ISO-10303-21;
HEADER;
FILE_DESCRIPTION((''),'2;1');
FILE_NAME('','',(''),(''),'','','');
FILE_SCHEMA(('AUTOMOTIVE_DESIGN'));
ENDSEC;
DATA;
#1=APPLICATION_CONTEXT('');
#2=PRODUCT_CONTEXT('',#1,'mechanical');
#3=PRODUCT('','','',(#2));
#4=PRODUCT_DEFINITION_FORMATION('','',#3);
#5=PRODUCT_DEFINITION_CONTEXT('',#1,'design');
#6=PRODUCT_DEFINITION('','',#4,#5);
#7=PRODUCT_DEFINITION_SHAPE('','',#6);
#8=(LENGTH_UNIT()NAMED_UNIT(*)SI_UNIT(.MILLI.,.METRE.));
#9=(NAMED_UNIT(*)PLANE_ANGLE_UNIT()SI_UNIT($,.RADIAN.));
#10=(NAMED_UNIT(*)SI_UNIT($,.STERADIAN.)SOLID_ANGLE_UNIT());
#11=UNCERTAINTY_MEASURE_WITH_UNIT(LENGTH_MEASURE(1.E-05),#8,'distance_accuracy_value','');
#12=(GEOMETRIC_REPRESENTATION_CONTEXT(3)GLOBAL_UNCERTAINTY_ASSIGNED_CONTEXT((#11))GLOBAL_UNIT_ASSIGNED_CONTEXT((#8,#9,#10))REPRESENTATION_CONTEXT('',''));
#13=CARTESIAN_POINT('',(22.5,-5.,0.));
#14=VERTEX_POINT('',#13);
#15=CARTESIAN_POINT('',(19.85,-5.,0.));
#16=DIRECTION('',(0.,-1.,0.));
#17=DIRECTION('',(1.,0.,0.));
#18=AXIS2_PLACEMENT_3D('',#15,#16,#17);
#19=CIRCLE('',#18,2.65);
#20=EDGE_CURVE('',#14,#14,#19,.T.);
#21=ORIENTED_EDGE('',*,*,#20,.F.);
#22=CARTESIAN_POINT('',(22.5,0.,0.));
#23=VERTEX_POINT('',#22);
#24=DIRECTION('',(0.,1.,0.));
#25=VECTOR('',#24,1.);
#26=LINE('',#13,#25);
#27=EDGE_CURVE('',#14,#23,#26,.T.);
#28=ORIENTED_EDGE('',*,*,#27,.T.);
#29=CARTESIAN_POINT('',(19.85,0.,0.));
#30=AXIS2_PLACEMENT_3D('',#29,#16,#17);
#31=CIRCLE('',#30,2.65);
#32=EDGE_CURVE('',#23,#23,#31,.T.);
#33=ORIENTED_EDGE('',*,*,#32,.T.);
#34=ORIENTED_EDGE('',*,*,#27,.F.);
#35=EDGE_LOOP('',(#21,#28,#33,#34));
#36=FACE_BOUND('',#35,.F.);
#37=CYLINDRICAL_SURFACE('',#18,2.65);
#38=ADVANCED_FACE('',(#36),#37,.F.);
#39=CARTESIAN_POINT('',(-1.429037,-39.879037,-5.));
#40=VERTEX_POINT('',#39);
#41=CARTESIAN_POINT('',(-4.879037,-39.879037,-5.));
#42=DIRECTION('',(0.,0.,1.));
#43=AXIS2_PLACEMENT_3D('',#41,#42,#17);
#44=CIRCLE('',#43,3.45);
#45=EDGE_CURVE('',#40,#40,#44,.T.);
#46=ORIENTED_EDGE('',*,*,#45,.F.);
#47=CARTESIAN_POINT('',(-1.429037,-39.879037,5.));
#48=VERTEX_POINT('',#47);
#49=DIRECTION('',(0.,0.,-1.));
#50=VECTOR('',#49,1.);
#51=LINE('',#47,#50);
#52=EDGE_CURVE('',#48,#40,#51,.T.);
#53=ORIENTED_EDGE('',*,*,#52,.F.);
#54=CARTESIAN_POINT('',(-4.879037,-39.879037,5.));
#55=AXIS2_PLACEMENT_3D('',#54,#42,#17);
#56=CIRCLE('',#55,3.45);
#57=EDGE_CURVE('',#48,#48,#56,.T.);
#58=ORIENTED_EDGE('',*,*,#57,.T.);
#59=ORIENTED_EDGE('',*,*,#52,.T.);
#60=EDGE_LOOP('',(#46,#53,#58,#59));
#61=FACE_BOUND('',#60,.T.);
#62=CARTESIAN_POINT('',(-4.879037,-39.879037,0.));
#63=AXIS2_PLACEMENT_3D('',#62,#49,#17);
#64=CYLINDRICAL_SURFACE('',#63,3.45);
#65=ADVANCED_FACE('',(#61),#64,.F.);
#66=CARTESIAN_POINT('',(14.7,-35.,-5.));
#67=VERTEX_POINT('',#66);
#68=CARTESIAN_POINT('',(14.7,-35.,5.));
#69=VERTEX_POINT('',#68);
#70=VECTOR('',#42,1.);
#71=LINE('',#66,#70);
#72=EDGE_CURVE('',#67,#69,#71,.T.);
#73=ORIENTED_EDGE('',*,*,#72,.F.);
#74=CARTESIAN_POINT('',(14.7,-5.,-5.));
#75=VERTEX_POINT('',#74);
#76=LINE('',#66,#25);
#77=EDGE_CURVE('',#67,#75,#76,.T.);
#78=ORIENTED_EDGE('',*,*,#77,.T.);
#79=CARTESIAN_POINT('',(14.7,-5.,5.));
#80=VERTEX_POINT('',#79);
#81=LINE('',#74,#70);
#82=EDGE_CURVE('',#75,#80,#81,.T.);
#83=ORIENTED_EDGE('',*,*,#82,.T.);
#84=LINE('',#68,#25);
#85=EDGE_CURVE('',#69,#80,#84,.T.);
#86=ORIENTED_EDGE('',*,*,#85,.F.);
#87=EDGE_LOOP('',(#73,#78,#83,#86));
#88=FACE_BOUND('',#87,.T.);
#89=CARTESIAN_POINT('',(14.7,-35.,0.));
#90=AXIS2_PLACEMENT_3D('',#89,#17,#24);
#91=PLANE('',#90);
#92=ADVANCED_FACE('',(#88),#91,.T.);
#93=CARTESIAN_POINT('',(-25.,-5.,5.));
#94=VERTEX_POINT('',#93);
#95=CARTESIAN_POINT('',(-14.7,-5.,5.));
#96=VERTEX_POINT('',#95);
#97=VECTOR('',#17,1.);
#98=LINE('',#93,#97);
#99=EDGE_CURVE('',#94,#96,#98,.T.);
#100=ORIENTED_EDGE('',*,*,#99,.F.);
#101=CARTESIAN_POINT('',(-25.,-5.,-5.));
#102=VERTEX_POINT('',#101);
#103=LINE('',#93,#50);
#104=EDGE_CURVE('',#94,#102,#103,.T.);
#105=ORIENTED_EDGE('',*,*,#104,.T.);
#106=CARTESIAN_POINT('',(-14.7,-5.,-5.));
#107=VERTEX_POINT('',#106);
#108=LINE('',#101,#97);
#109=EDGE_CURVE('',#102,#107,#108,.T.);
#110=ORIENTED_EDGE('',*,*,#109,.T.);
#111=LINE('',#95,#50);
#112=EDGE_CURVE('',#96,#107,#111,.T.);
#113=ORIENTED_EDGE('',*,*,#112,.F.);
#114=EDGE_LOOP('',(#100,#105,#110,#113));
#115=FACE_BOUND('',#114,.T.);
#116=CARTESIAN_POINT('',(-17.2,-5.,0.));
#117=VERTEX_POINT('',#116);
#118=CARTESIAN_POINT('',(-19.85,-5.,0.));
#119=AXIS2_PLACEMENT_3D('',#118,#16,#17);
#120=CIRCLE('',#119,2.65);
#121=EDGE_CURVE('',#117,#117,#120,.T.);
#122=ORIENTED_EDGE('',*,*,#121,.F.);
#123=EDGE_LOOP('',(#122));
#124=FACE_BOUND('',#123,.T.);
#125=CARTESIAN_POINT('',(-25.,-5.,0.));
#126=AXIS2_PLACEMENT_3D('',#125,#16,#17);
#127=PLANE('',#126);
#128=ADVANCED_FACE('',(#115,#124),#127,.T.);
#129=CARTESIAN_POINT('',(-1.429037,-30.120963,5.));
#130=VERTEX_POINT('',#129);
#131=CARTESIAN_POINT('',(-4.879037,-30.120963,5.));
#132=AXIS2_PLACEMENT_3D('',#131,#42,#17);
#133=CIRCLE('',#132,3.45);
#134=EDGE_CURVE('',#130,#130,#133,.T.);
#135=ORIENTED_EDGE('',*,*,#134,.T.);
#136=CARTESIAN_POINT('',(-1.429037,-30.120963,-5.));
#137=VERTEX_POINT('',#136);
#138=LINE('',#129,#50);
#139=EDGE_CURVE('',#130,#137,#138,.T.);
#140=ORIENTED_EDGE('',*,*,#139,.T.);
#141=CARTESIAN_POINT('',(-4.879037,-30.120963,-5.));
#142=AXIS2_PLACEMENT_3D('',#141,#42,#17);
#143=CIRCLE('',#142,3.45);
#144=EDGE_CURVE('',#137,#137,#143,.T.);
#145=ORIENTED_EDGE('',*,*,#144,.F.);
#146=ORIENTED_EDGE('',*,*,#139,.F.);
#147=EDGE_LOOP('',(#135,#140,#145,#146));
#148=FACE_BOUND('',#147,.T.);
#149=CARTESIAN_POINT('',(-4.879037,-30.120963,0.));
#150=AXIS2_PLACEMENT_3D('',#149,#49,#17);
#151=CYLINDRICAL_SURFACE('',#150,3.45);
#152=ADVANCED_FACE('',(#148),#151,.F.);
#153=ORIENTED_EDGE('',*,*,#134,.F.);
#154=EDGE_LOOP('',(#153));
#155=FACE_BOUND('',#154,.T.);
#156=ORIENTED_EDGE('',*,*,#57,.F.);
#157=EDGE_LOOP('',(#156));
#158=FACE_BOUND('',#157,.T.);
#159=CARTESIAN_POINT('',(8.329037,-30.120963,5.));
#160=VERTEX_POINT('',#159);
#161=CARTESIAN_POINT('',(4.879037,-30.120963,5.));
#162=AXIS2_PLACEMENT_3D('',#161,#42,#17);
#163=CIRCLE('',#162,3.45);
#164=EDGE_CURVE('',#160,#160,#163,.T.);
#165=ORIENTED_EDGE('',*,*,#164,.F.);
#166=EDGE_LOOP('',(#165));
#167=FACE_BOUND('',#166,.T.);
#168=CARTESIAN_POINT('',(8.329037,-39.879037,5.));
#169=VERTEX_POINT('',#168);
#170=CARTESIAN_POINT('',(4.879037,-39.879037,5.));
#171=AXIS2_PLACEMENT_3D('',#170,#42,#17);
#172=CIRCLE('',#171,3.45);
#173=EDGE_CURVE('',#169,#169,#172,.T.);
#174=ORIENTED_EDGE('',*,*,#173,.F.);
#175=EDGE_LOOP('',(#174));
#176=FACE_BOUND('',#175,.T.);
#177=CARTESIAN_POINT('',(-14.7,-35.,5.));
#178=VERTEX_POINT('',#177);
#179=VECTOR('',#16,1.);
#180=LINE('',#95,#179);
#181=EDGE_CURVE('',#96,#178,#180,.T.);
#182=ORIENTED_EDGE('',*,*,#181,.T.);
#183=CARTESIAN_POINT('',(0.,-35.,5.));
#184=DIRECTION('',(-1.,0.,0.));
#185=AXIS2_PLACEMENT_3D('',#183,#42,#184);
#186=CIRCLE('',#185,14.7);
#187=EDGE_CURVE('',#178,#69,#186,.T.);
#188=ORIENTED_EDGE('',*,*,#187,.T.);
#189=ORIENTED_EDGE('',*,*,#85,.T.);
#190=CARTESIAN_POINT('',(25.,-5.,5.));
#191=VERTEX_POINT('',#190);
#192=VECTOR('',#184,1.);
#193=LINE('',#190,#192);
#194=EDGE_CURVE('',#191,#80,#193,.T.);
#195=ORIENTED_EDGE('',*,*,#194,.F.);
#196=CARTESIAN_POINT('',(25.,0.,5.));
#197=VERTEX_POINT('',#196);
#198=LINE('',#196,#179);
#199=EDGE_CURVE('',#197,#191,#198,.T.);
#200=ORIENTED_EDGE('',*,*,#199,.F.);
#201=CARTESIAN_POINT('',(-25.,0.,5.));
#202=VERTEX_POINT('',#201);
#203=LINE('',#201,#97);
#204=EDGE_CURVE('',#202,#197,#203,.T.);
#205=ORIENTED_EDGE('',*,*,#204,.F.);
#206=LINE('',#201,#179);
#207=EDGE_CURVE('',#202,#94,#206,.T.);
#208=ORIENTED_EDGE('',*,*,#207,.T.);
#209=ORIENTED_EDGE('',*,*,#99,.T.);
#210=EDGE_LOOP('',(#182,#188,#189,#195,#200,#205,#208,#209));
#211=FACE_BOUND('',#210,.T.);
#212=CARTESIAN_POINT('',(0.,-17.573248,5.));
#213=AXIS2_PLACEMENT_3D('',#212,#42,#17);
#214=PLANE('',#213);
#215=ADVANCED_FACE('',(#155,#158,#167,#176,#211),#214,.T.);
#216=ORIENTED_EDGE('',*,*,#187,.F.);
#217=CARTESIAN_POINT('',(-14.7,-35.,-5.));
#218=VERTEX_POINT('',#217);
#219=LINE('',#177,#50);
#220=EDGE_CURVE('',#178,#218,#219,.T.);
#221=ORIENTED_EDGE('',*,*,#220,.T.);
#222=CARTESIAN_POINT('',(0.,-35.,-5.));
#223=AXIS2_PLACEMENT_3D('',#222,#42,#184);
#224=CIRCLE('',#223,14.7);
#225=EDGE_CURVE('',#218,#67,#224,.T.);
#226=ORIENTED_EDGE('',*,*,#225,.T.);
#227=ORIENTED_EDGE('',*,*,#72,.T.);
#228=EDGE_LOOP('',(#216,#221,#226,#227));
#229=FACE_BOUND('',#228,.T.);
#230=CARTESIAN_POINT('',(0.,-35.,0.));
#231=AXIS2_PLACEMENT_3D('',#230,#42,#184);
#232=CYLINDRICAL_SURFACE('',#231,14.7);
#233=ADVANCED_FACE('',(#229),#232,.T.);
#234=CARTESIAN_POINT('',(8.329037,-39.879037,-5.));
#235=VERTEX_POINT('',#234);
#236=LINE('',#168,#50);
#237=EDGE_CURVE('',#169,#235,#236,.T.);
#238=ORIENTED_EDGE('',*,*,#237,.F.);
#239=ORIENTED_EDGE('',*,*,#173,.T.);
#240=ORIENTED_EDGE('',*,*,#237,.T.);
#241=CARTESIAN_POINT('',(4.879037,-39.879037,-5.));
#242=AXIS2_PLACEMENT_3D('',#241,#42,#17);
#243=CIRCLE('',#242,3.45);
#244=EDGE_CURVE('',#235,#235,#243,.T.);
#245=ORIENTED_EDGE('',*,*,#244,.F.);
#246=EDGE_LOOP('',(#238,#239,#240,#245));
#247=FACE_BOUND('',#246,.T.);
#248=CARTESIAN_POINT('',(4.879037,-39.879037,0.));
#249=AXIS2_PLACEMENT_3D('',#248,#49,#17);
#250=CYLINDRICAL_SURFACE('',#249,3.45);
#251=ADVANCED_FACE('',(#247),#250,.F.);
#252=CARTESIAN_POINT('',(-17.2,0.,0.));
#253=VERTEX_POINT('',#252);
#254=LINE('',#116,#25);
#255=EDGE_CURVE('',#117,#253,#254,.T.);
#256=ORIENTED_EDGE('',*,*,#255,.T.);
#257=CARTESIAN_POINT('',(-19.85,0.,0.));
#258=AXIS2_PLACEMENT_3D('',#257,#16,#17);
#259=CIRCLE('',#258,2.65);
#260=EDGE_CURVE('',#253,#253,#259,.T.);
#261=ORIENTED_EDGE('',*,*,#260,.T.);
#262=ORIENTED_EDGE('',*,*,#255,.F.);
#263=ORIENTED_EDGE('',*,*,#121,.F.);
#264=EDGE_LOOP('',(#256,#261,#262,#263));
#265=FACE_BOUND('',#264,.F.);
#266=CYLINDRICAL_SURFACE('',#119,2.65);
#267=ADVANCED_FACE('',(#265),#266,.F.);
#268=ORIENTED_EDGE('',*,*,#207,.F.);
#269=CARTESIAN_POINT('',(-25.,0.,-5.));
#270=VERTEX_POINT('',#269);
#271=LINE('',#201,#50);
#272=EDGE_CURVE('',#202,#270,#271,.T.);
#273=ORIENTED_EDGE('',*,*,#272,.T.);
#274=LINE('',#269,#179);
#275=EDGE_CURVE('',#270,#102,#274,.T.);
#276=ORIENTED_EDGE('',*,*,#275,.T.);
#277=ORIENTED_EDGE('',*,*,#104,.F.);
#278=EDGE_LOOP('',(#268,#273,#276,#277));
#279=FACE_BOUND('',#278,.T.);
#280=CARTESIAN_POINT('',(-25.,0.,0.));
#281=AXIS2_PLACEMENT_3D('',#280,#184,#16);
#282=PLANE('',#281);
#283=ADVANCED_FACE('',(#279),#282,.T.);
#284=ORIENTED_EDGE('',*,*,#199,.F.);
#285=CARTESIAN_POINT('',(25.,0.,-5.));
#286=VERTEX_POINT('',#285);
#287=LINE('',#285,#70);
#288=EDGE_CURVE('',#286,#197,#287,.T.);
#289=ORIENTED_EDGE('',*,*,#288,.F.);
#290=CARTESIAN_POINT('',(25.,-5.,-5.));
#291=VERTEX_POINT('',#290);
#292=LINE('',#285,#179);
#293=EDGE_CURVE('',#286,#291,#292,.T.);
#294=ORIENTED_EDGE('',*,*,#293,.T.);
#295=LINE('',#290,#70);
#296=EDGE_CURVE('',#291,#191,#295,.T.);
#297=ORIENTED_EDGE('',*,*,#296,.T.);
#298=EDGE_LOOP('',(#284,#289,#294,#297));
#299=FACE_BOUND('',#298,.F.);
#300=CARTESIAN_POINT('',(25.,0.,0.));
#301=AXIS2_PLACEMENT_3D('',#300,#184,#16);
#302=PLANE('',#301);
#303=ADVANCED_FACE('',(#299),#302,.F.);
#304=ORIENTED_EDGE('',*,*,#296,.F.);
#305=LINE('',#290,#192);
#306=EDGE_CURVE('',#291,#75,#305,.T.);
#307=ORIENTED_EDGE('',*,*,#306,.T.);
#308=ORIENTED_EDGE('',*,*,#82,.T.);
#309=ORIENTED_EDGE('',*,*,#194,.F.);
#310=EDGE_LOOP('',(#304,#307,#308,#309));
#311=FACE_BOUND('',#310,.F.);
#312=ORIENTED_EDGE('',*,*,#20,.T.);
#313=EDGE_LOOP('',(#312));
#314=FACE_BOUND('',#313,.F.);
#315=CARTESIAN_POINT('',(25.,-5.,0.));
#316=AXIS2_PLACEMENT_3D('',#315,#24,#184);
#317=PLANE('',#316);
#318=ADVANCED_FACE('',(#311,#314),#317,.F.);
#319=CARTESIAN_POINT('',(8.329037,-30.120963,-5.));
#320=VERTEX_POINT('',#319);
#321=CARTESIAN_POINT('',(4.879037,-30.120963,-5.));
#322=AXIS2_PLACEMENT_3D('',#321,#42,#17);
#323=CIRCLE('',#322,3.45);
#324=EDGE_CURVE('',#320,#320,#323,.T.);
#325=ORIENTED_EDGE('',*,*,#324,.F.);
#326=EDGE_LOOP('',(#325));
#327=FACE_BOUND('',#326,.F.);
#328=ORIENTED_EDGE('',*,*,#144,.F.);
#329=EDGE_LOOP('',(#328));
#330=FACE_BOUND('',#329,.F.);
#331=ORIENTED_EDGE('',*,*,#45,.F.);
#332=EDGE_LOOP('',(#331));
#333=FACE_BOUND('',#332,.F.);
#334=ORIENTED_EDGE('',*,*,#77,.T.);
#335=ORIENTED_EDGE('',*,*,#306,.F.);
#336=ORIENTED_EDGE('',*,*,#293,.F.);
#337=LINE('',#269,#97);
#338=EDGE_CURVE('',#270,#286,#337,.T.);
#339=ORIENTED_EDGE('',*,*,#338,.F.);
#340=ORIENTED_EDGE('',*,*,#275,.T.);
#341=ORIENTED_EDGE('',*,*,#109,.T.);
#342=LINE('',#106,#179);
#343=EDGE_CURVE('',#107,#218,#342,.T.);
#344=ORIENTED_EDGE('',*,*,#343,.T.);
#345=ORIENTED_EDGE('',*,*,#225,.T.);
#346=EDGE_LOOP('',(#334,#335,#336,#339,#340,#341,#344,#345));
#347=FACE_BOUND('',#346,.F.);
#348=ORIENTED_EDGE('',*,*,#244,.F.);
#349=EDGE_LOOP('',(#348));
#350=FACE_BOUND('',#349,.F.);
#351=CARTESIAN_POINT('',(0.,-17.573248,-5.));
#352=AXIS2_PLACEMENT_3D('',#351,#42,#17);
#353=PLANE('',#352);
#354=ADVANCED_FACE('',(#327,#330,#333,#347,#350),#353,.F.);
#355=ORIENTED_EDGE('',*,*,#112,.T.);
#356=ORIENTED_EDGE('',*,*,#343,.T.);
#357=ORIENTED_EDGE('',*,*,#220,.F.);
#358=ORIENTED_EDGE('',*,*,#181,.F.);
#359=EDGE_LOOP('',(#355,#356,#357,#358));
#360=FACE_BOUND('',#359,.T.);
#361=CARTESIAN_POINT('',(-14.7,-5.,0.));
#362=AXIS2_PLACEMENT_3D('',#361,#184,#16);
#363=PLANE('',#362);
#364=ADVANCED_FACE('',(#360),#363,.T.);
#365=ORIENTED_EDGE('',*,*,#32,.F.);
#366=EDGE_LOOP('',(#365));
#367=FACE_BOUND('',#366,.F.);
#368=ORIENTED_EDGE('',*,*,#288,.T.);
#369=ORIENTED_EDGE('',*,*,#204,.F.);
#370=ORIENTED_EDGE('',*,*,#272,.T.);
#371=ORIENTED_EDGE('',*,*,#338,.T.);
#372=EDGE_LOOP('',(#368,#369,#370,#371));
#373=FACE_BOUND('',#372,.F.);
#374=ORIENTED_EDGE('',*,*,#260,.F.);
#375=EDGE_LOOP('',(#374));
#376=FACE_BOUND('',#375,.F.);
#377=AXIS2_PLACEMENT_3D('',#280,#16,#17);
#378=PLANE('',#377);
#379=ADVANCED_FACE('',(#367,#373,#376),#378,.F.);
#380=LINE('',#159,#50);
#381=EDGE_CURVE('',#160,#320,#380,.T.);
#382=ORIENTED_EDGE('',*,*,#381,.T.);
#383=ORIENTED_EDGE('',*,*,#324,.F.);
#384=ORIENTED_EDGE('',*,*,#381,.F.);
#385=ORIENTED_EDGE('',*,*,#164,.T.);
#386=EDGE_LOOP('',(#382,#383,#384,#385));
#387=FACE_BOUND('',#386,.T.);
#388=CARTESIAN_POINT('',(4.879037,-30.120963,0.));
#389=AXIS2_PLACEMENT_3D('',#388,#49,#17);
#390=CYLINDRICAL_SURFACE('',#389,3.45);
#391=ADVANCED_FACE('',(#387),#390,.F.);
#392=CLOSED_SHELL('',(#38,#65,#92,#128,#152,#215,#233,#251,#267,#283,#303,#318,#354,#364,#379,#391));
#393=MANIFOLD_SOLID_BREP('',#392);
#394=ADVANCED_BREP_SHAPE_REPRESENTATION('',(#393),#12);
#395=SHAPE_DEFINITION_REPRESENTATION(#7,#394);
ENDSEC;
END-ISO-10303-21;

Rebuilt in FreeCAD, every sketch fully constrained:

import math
import FreeCAD as App
import Part
import Sketcher
Q = App.Units.Quantity

doc = App.newDocument("Part")
body = doc.addObject("PartDesign::Body", "Body")

sketch1 = body.newObject("Sketcher::SketchObject", "Sketch")
sketch1.AttachmentSupport = (doc.getObject("XY_Plane"), [""])
sketch1.MapMode = "FlatFace"
sketch1.addGeometry(Part.ArcOfCircle(Part.Circle(App.Vector(0, -35, 0), App.Vector(0, 0, 1), 14.7), math.radians(180), math.radians(360)), False)
sketch1.addGeometry(Part.LineSegment(App.Vector(14.7, -35, 0), App.Vector(14.7, -5, 0)), False)
sketch1.addGeometry(Part.LineSegment(App.Vector(14.7, -5, 0), App.Vector(25, -5, 0)), False)
sketch1.addGeometry(Part.LineSegment(App.Vector(25, -5, 0), App.Vector(25, 0, 0)), False)
sketch1.addGeometry(Part.LineSegment(App.Vector(25, 0, 0), App.Vector(-25, 0, 0)), False)
sketch1.addGeometry(Part.LineSegment(App.Vector(-25, 0, 0), App.Vector(-25, -5, 0)), False)
sketch1.addGeometry(Part.LineSegment(App.Vector(-25, -5, 0), App.Vector(-14.7, -5, 0)), False)
sketch1.addGeometry(Part.LineSegment(App.Vector(-14.7, -5, 0), App.Vector(-14.7, -35, 0)), False)
sketch1.addGeometry(Part.Circle(App.Vector(-4.879037, -39.879037, 0), App.Vector(0, 0, 1), 3.45), False)
sketch1.addGeometry(Part.Circle(App.Vector(4.879037, -39.879037, 0), App.Vector(0, 0, 1), 3.45), False)
sketch1.addGeometry(Part.Circle(App.Vector(-4.879037, -30.120963, 0), App.Vector(0, 0, 1), 3.45), False)
sketch1.addGeometry(Part.Circle(App.Vector(4.879037, -30.120963, 0), App.Vector(0, 0, 1), 3.45), False)
sketch1.addConstraint(Sketcher.Constraint("Tangent", 0, 2, 1, 1))
sketch1.addConstraint(Sketcher.Constraint("Coincident", 1, 2, 2, 1))
sketch1.addConstraint(Sketcher.Constraint("Coincident", 2, 2, 3, 1))
sketch1.addConstraint(Sketcher.Constraint("Coincident", 3, 2, 4, 1))
sketch1.addConstraint(Sketcher.Constraint("Coincident", 4, 2, 5, 1))
sketch1.addConstraint(Sketcher.Constraint("Coincident", 5, 2, 6, 1))
sketch1.addConstraint(Sketcher.Constraint("Coincident", 6, 2, 7, 1))
sketch1.addConstraint(Sketcher.Constraint("Tangent", 7, 2, 0, 1))
sketch1.addConstraint(Sketcher.Constraint("Vertical", 1))
sketch1.addConstraint(Sketcher.Constraint("Horizontal", 2))
sketch1.addConstraint(Sketcher.Constraint("Vertical", 3))
sketch1.addConstraint(Sketcher.Constraint("Horizontal", 4))
sketch1.addConstraint(Sketcher.Constraint("Vertical", 5))
sketch1.addConstraint(Sketcher.Constraint("Horizontal", 6))
sketch1.addConstraint(Sketcher.Constraint("Vertical", 7))
sketch1.addConstraint(Sketcher.Constraint("Equal", 8, 9))
sketch1.addConstraint(Sketcher.Constraint("Equal", 9, 10))
sketch1.addConstraint(Sketcher.Constraint("Equal", 10, 11))
sketch1.addConstraint(Sketcher.Constraint("Symmetric", 3, 2, 4, 2, -1, 1))
sketch1.addConstraint(Sketcher.Constraint("Symmetric", 8, 3, 9, 3, -2))
sketch1.addConstraint(Sketcher.Constraint("Symmetric", 10, 3, 11, 3, -2))
sketch1.addConstraint(Sketcher.Constraint("Symmetric", 1, 2, 6, 2, -2))
sketch1.addConstraint(Sketcher.Constraint("Vertical", 8, 3, 10, 3))
sketch1.addConstraint(Sketcher.Constraint("Diameter", 8, Q("6.9 mm")))
sketch1.addConstraint(Sketcher.Constraint("Radius", 0, Q("14.7 mm")))
sketch1.addConstraint(Sketcher.Constraint("DistanceX", 4, 2, 4, 1, Q("50 mm")))
sketch1.addConstraint(Sketcher.Constraint("DistanceY", 1, 1, 1, 2, Q("30 mm")))
sketch1.addConstraint(Sketcher.Constraint("DistanceY", 3, 1, 3, 2, Q("5 mm")))
sketch1.addConstraint(Sketcher.Constraint("DistanceX", 8, 3, -1, 1, Q("4.879037 mm")))
sketch1.addConstraint(Sketcher.Constraint("DistanceY", 8, 3, -1, 1, Q("39.879037 mm")))
sketch1.addConstraint(Sketcher.Constraint("DistanceY", 10, 3, -1, 1, Q("30.120963 mm")))
pad1 = body.newObject("PartDesign::Pad", "Pad")
pad1.Profile = sketch1
pad1.Length = 10
pad1.Midplane = True

sketch2 = body.newObject("Sketcher::SketchObject", "Sketch001")
sketch2.AttachmentSupport = (doc.getObject("XZ_Plane"), [""])
sketch2.MapMode = "FlatFace"
sketch2.AttachmentOffset = App.Placement(App.Vector(0, 0, 5), App.Rotation())
sketch2.addGeometry(Part.Circle(App.Vector(-19.85, 0, 0), App.Vector(0, 0, 1), 2.65), False)
sketch2.addGeometry(Part.Circle(App.Vector(19.85, 0, 0), App.Vector(0, 0, 1), 2.65), False)
sketch2.addConstraint(Sketcher.Constraint("Equal", 0, 1))
sketch2.addConstraint(Sketcher.Constraint("Symmetric", 0, 3, 1, 3, -1, 1))
sketch2.addConstraint(Sketcher.Constraint("PointOnObject", 0, 3, -1))
sketch2.addConstraint(Sketcher.Constraint("Diameter", 0, Q("5.3 mm")))
sketch2.addConstraint(Sketcher.Constraint("DistanceX", 0, 3, 1, 3, Q("39.7 mm")))
pocket1 = body.newObject("PartDesign::Pocket", "Pocket")
pocket1.Profile = sketch2
pocket1.Type = "ThroughAll"

doc.recompute()
